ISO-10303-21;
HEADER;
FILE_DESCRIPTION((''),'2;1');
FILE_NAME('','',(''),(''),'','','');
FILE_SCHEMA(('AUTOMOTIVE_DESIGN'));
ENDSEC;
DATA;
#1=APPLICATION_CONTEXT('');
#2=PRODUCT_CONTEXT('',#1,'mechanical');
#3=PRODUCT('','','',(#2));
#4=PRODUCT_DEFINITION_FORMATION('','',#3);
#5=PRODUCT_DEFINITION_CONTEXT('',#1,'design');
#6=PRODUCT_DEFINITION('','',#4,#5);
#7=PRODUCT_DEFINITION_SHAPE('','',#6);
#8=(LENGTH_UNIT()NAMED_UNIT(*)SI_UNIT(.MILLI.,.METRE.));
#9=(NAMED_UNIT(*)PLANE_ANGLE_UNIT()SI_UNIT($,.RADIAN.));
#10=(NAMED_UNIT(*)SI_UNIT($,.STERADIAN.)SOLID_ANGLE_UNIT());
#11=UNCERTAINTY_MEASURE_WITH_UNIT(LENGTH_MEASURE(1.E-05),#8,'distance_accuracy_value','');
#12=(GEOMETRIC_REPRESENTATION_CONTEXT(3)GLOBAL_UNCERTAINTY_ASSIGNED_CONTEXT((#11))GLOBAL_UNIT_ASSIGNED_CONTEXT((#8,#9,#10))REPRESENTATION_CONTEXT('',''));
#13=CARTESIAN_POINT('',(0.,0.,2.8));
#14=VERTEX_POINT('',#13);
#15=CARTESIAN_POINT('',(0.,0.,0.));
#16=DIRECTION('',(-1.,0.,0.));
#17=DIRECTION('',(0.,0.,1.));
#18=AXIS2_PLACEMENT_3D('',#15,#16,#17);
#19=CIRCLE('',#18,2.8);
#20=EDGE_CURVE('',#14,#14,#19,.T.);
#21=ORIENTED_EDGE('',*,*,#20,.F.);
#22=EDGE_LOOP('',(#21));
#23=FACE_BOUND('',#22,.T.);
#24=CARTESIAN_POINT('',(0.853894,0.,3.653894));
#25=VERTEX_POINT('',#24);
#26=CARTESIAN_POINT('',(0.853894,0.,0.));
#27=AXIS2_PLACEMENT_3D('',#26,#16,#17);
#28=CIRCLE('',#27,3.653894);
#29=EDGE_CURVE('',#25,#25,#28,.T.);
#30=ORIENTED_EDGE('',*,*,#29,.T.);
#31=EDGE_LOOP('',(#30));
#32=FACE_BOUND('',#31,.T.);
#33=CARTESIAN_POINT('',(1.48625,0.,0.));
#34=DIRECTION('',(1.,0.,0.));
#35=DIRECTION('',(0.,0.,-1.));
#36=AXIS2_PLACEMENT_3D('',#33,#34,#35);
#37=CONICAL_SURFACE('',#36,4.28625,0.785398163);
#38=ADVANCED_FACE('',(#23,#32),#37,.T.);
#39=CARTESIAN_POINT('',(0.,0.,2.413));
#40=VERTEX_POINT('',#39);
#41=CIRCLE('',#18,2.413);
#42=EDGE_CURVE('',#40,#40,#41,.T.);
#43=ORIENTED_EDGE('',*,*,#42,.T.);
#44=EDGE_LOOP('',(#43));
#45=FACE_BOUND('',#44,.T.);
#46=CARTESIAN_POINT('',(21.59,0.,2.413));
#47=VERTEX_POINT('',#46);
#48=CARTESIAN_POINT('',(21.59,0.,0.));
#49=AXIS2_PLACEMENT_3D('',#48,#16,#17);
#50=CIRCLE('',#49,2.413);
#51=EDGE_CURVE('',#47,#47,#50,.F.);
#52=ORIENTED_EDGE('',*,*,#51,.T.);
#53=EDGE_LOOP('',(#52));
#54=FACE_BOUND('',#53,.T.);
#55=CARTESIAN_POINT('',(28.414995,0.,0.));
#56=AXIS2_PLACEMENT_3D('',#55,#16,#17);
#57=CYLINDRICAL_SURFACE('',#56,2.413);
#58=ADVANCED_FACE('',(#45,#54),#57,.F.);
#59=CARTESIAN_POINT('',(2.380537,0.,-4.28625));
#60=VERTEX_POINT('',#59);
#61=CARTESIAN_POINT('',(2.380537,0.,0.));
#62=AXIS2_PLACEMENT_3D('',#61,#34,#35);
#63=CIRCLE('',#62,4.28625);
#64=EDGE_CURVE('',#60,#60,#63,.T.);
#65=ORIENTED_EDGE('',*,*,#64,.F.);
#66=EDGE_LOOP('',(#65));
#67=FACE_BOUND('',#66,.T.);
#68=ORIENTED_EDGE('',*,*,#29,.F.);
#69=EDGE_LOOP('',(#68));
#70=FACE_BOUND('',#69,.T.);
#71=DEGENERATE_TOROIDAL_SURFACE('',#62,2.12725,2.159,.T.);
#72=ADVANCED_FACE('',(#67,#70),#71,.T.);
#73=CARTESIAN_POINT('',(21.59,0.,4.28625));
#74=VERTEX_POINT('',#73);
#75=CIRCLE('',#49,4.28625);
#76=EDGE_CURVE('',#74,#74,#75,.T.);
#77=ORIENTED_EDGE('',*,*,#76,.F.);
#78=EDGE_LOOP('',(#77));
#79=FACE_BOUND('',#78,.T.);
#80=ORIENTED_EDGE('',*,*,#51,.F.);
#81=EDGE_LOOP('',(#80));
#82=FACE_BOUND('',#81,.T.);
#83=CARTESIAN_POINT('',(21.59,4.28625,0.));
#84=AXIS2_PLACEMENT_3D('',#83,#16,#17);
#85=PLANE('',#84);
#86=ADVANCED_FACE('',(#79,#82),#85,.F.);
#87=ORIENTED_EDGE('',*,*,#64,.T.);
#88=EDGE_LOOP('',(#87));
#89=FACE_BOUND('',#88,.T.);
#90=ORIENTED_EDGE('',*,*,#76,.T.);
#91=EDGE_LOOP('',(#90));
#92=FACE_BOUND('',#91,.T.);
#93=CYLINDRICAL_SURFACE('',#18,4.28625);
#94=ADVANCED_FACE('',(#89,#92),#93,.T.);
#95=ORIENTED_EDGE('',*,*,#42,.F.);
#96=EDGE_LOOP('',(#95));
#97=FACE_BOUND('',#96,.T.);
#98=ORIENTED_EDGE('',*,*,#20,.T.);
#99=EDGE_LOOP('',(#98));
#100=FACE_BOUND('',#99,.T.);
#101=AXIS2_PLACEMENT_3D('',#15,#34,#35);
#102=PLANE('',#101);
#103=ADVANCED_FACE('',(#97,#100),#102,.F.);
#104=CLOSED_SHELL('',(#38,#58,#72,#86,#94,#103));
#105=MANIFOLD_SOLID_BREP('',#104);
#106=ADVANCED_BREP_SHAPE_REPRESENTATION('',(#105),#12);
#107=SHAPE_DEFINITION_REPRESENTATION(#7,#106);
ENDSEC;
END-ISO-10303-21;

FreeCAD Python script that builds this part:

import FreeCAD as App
import Part
import Sketcher

V = App.Vector
Q = App.Units.Quantity


def edges_at(feature, points):
    """Names of the edges that pass closest to the given points."""
    edges = feature.Shape.Edges
    near = lambda p: min(range(len(edges)), key=lambda i: edges[i].distToShape(Part.Vertex(*p))[0])
    return sorted({f"Edge{near(p) + 1}" for p in points})

doc = App.newDocument("Part")
body = doc.addObject("PartDesign::Body", "Body")

sketch1 = body.newObject("Sketcher::SketchObject", "Sketch")
sketch1.AttachmentSupport = (doc.getObject("XY_Plane"), [""])
sketch1.MapMode = "FlatFace"
sketch1.addGeometry([
    Part.LineSegment(V(0, 2.8, 0), V(0, 0, 0)),
    Part.LineSegment(V(0, 0, 0), V(21.59, 0, 0)),
    Part.LineSegment(V(21.59, 0, 0), V(21.59, 4.28625, 0)),
    Part.LineSegment(V(21.59, 4.28625, 0), V(1.48625, 4.28625, 0)),
    Part.LineSegment(V(1.48625, 4.28625, 0), V(0, 2.8, 0)),
], False)
sketch1.addConstraint([
    Sketcher.Constraint("Coincident", 0, 2, 1, 1),
    Sketcher.Constraint("Coincident", 1, 2, 2, 1),
    Sketcher.Constraint("Coincident", 2, 2, 3, 1),
    Sketcher.Constraint("Coincident", 3, 2, 4, 1),
    Sketcher.Constraint("Coincident", 4, 2, 0, 1),
    Sketcher.Constraint("Vertical", 0),
    Sketcher.Constraint("Horizontal", 1),
    Sketcher.Constraint("Vertical", 2),
    Sketcher.Constraint("Horizontal", 3),
    Sketcher.Constraint("Coincident", 0, 2, -1, 1),
    Sketcher.Constraint("Angle", 4, Q("-135 deg")),
    Sketcher.Constraint("DistanceX", 1, 1, 1, 2, Q("0.85 in")),
    Sketcher.Constraint("DistanceY", 0, 2, 0, 1, 2.8),
    Sketcher.Constraint("DistanceX", 3, 2, 3, 1, 20.10375),
])
revolution = body.newObject("PartDesign::Revolution", "Revolution")
revolution.Profile = sketch1
revolution.ReferenceAxis = (sketch1, ["H_Axis"])
revolution.Angle = 360
doc.recompute()

fillet = body.newObject("PartDesign::Fillet", "Fillet")
fillet.Base = (revolution, edges_at(revolution, [(1.486, 0, -4.286)]))
fillet.Radius = Q("0.085 in")

sketch2 = body.newObject("Sketcher::SketchObject", "Sketch001")
sketch2.AttachmentSupport = (doc.getObject("YZ_Plane"), [""])
sketch2.MapMode = "FlatFace"
sketch2.addGeometry(Part.Circle(V(0, 0, 0), V(0, 0, 1), 2.413), False)
sketch2.addConstraint([
    Sketcher.Constraint("Coincident", 0, 3, -1, 1),
    Sketcher.Constraint("Diameter", 0, Q("0.19 in")),
])
pocket1 = body.newObject("PartDesign::Pocket", "Pocket")
pocket1.Profile = sketch2
pocket1.Length = Q("0.85 in")
pocket1.Reversed = True

doc.recompute()
